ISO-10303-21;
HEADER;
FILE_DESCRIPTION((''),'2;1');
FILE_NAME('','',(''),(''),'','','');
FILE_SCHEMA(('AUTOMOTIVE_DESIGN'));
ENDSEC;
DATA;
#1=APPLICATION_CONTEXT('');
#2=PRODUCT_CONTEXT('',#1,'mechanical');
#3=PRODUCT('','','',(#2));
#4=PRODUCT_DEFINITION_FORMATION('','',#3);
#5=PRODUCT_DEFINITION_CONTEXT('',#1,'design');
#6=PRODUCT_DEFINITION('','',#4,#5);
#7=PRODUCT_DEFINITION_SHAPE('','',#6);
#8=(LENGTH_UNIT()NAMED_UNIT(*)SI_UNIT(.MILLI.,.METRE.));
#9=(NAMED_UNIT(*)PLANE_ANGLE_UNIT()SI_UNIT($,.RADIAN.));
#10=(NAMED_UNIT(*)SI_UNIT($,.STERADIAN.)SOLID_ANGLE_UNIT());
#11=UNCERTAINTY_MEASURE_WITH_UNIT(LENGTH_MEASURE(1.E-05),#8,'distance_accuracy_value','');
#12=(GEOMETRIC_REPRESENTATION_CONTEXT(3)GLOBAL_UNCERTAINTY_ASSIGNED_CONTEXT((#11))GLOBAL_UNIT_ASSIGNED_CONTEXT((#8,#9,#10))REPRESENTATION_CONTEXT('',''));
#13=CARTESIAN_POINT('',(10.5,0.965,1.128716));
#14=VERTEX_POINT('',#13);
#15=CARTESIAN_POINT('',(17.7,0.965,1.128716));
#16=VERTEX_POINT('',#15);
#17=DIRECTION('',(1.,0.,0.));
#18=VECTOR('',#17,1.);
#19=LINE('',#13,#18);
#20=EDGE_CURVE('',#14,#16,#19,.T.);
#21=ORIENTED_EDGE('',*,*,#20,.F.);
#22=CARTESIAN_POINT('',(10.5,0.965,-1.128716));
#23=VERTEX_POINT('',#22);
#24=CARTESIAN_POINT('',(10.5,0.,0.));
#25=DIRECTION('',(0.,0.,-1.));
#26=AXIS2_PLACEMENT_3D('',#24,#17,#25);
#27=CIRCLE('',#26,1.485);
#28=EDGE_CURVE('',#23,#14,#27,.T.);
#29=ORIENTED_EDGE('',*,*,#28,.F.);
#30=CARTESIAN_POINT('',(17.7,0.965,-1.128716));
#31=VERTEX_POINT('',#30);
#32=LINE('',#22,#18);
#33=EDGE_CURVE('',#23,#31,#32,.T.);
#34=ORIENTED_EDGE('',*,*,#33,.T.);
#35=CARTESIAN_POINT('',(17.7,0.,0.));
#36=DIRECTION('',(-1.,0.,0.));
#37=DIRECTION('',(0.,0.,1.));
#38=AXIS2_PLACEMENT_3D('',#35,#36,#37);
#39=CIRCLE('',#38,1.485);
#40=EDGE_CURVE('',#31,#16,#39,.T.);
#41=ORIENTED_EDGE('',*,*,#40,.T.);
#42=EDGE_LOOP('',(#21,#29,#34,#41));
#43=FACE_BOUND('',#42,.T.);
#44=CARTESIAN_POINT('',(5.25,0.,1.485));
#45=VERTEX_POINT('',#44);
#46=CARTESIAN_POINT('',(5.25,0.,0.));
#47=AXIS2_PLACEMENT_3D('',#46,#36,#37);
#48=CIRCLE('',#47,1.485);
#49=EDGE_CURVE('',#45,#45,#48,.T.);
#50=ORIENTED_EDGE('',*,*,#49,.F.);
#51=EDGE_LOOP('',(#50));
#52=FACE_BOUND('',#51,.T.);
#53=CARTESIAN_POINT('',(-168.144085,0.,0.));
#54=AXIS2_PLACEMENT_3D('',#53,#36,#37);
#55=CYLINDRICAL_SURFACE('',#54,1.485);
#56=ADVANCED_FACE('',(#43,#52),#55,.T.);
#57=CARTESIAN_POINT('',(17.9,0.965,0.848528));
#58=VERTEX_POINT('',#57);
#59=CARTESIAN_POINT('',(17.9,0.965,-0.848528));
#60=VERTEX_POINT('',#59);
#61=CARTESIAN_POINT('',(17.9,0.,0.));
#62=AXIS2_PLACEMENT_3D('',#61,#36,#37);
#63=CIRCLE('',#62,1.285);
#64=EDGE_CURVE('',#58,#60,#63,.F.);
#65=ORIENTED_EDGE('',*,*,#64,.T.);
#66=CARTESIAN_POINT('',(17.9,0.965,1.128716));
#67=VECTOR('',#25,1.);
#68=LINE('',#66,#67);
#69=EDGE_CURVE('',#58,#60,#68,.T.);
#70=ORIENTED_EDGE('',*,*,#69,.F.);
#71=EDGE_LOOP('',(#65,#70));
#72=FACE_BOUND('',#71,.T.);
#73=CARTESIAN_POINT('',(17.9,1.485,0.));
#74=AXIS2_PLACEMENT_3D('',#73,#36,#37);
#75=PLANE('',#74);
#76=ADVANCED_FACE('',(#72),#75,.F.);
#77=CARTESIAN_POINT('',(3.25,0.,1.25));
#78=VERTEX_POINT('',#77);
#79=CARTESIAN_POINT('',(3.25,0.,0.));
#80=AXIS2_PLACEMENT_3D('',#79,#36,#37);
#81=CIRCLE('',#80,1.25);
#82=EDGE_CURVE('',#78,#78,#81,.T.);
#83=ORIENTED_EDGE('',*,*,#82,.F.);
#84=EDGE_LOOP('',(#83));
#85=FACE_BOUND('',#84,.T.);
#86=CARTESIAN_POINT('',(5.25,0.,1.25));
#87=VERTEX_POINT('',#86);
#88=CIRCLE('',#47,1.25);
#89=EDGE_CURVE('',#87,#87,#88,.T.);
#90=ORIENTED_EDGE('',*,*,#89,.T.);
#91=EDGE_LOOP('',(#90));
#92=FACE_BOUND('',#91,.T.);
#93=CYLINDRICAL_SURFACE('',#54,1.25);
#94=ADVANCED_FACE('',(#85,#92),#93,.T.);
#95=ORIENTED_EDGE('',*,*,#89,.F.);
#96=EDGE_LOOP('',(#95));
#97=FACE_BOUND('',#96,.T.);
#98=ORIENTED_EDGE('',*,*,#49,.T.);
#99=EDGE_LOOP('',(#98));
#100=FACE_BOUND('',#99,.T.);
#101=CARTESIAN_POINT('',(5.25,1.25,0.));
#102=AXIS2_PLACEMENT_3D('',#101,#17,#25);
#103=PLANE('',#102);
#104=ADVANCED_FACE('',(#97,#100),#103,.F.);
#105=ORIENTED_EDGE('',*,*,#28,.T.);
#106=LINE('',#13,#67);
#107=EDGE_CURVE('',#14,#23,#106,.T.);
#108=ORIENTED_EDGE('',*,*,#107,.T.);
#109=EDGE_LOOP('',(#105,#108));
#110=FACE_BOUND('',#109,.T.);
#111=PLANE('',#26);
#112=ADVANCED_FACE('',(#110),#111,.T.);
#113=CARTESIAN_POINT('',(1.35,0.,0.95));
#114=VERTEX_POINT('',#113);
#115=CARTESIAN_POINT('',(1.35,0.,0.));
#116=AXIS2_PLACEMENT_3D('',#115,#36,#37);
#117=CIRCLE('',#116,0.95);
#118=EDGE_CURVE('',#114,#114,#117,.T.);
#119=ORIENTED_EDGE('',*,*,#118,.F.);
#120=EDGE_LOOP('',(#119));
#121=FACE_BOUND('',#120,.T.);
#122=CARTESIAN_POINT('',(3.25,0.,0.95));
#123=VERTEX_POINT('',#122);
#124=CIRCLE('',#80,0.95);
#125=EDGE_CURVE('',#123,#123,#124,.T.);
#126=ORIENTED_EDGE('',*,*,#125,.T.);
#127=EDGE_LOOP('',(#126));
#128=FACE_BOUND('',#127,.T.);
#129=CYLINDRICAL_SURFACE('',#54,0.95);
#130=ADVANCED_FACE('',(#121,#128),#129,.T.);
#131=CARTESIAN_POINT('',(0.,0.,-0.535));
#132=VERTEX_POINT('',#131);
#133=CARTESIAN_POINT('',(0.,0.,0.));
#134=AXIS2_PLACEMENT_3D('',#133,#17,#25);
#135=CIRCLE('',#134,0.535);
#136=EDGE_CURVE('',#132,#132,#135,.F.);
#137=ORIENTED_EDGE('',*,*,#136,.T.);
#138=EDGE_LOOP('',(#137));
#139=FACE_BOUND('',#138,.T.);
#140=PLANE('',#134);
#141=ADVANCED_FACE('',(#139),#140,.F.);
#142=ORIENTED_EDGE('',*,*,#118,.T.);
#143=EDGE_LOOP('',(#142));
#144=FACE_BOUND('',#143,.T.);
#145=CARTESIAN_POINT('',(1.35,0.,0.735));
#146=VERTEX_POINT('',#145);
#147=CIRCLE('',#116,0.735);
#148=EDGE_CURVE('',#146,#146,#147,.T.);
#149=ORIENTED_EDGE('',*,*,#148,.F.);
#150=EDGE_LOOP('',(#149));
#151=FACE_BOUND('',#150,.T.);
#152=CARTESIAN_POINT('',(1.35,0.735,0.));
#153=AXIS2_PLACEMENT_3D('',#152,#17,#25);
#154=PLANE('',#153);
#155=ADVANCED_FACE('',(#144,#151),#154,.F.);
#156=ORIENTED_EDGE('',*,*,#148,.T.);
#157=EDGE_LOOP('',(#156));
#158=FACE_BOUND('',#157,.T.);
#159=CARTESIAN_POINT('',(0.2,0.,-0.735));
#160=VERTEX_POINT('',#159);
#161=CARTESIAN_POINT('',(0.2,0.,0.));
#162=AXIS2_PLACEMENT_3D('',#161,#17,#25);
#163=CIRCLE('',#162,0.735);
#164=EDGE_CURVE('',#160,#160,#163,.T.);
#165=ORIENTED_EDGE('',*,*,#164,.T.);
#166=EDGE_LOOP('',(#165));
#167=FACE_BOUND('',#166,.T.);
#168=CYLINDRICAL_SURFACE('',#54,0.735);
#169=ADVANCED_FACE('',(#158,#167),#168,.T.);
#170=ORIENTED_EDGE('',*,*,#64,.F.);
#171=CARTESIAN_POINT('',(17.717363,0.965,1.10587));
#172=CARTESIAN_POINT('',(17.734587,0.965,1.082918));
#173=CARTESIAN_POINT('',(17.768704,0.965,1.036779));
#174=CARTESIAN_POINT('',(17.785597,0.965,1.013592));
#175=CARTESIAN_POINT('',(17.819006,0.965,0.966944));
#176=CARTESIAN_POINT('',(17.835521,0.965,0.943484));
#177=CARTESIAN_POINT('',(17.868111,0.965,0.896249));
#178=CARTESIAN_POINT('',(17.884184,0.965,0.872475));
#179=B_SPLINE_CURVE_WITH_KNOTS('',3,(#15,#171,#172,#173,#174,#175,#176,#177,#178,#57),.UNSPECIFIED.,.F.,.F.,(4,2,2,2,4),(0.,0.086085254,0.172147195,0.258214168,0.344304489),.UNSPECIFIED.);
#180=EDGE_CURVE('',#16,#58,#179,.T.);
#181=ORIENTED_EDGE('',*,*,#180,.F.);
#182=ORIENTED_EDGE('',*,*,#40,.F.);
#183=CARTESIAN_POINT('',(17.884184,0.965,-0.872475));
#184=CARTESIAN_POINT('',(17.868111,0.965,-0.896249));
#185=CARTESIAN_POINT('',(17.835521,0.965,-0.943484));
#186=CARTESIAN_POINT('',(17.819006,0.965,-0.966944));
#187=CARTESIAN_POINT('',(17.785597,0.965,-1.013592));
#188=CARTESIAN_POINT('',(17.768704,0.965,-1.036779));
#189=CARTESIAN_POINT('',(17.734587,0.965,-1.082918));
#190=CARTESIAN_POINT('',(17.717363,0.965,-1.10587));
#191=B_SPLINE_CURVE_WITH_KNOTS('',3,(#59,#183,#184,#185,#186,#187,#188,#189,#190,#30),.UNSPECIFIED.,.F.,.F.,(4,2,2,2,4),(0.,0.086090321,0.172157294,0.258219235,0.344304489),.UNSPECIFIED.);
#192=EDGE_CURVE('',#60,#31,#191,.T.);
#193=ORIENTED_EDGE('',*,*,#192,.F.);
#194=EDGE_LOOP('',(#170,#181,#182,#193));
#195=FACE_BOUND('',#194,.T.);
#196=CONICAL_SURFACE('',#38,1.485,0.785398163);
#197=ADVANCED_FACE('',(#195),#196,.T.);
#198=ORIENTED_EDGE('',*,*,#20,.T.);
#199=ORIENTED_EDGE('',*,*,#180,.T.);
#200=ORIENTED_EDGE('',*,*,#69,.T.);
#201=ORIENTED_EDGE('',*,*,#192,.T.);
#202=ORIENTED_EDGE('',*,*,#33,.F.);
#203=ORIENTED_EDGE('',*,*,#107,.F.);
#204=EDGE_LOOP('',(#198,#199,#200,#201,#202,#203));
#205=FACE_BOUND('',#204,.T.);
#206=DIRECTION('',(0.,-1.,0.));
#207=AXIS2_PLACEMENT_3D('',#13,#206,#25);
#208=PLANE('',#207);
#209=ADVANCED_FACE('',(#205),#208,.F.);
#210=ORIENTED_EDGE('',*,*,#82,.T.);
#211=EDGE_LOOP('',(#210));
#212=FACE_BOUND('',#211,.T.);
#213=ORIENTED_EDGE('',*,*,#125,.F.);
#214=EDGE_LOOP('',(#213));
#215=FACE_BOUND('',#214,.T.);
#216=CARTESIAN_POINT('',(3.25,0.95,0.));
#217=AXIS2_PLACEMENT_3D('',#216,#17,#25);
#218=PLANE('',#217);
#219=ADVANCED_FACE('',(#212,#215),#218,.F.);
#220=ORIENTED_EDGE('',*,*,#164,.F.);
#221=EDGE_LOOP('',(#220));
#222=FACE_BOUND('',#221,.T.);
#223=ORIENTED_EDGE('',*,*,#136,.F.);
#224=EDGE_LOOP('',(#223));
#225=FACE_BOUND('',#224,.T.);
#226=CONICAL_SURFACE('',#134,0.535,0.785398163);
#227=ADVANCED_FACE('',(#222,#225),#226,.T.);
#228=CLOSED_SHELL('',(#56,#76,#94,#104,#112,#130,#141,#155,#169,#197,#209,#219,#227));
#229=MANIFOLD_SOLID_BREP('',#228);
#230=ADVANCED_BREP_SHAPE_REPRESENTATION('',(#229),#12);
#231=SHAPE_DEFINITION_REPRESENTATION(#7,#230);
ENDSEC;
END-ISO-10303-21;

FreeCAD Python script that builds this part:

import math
import FreeCAD as App
import Part
import Sketcher
from FreeCAD import Vector
Q = App.Units.Quantity


def edges_at(feature, points):
    """Names of the edges that pass closest to the given points."""
    edges = feature.Shape.Edges
    near = lambda p: min(range(len(edges)), key=lambda i: edges[i].distToShape(Part.Vertex(*p))[0])
    return sorted({f"Edge{near(p) + 1}" for p in points})

doc = App.newDocument("Part")
body = doc.addObject("PartDesign::Body", "Body")

# Sketch on XY plane
sketch1 = body.newObject("Sketcher::SketchObject", "Sketch")
sketch1.AttachmentSupport = (doc.getObject("XY_Plane"), [""])
sketch1.MapMode = "FlatFace"
sketch1.addGeometry(Part.LineSegment(Vector(0, 0.73, 0), Vector(0, 0, 0)), False)
sketch1.addGeometry(Part.LineSegment(Vector(0, 0, 0), Vector(17.9, 0, 0)), False)
sketch1.addGeometry(Part.LineSegment(Vector(17.9, 0, 0), Vector(17.9, 1.49, 0)), False)
sketch1.addGeometry(Part.LineSegment(Vector(17.9, 1.49, 0), Vector(5.25, 1.49, 0)), False)
sketch1.addGeometry(Part.LineSegment(Vector(5.25, 1.49, 0), Vector(5.25, 1.25, 0)), False)
sketch1.addGeometry(Part.LineSegment(Vector(5.25, 1.25, 0), Vector(3.25, 1.25, 0)), False)
sketch1.addGeometry(Part.LineSegment(Vector(3.25, 1.25, 0), Vector(3.25, 0.95, 0)), False)
sketch1.addGeometry(Part.LineSegment(Vector(3.25, 0.95, 0), Vector(1.35, 0.95, 0)), False)
sketch1.addGeometry(Part.LineSegment(Vector(1.35, 0.95, 0), Vector(1.35, 0.73, 0)), False)
sketch1.addGeometry(Part.LineSegment(Vector(1.35, 0.73, 0), Vector(0, 0.73, 0)), False)
sketch1.addConstraint(Sketcher.Constraint("Coincident", 0, 2, 1, 1))
sketch1.addConstraint(Sketcher.Constraint("Coincident", 1, 2, 2, 1))
sketch1.addConstraint(Sketcher.Constraint("Coincident", 2, 2, 3, 1))
sketch1.addConstraint(Sketcher.Constraint("Coincident", 3, 2, 4, 1))
sketch1.addConstraint(Sketcher.Constraint("Coincident", 4, 2, 5, 1))
sketch1.addConstraint(Sketcher.Constraint("Coincident", 5, 2, 6, 1))
sketch1.addConstraint(Sketcher.Constraint("Coincident", 6, 2, 7, 1))
sketch1.addConstraint(Sketcher.Constraint("Coincident", 7, 2, 8, 1))
sketch1.addConstraint(Sketcher.Constraint("Coincident", 8, 2, 9, 1))
sketch1.addConstraint(Sketcher.Constraint("Coincident", 9, 2, 0, 1))
sketch1.addConstraint(Sketcher.Constraint("Vertical", 0))
sketch1.addConstraint(Sketcher.Constraint("Horizontal", 1))
sketch1.addConstraint(Sketcher.Constraint("Vertical", 2))
sketch1.addConstraint(Sketcher.Constraint("Horizontal", 3))
sketch1.addConstraint(Sketcher.Constraint("Vertical", 4))
sketch1.addConstraint(Sketcher.Constraint("Horizontal", 5))
sketch1.addConstraint(Sketcher.Constraint("Vertical", 6))
sketch1.addConstraint(Sketcher.Constraint("Horizontal", 7))
sketch1.addConstraint(Sketcher.Constraint("Vertical", 8))
sketch1.addConstraint(Sketcher.Constraint("Horizontal", 9))
sketch1.addConstraint(Sketcher.Constraint("Coincident", 0, 2, -1, 1))
sketch1.addConstraint(Sketcher.Constraint("DistanceX", 5, 2, 5, 1, Q("2 mm")))
sketch1.addConstraint(Sketcher.Constraint("DistanceX", 1, 1, 1, 2, Q("17.9 mm")))
sketch1.addConstraint(Sketcher.Constraint("DistanceX", 7, 2, 7, 1, Q("1.9 mm")))
sketch1.addConstraint(Sketcher.Constraint("DistanceY", 6, 2, 6, 1, Q("0.3 mm")))
sketch1.addConstraint(Sketcher.Constraint("DistanceX", 3, 2, 3, 1, Q("12.65 mm")))
sketch1.addConstraint(Sketcher.Constraint("DistanceY", 0, 2, 0, 1, Q("0.735 mm")))
sketch1.addConstraint(Sketcher.Constraint("DistanceY", 2, 1, 2, 2, Q("1.485 mm")))
sketch1.addConstraint(Sketcher.Constraint("DistanceY", 4, 2, 4, 1, Q("0.235 mm")))
revolution = body.newObject("PartDesign::Revolution", "Revolution")
revolution.Profile = sketch1
revolution.ReferenceAxis = (sketch1, ["H_Axis"])
revolution.Angle = 360

# Sketch on YZ plane
sketch2 = body.newObject("Sketcher::SketchObject", "Sketch001")
sketch2.AttachmentSupport = (doc.getObject("YZ_Plane"), [""])
sketch2.MapMode = "FlatFace"
sketch2.AttachmentOffset = App.Placement(Vector(0, 0, 17.9), App.Rotation())
sketch2.addGeometry(Part.LineSegment(Vector(1, 1.1, 0), Vector(1, -1.1, 0)), False)
sketch2.addGeometry(Part.ArcOfCircle(Part.Circle(Vector(0, 0, 0), Vector(0, 0, 1), 1.5), math.radians(-49), math.radians(49)), False)
sketch2.addConstraint(Sketcher.Constraint("Coincident", 0, 1, 1, 2))
sketch2.addConstraint(Sketcher.Constraint("Coincident", 1, 1, 0, 2))
sketch2.addConstraint(Sketcher.Constraint("Vertical", 0))
sketch2.addConstraint(Sketcher.Constraint("Coincident", 1, 3, -1, 1))
sketch2.addConstraint(Sketcher.Constraint("Radius", 1, Q("1.485 mm")))
sketch2.addConstraint(Sketcher.Constraint("DistanceX", -1, 1, 0, 1, Q("0.965 mm")))
pocket1 = body.newObject("PartDesign::Pocket", "Pocket")
pocket1.Profile = sketch2
pocket1.Length = 7.4
doc.recompute()

chamfer = body.newObject("PartDesign::Chamfer", "Chamfer")
chamfer.Base = (pocket1, edges_at(pocket1, [(0, 0, -0.735), (17.9, -1.393, -0.514)]))
chamfer.Size = 0.2

doc.recompute()
